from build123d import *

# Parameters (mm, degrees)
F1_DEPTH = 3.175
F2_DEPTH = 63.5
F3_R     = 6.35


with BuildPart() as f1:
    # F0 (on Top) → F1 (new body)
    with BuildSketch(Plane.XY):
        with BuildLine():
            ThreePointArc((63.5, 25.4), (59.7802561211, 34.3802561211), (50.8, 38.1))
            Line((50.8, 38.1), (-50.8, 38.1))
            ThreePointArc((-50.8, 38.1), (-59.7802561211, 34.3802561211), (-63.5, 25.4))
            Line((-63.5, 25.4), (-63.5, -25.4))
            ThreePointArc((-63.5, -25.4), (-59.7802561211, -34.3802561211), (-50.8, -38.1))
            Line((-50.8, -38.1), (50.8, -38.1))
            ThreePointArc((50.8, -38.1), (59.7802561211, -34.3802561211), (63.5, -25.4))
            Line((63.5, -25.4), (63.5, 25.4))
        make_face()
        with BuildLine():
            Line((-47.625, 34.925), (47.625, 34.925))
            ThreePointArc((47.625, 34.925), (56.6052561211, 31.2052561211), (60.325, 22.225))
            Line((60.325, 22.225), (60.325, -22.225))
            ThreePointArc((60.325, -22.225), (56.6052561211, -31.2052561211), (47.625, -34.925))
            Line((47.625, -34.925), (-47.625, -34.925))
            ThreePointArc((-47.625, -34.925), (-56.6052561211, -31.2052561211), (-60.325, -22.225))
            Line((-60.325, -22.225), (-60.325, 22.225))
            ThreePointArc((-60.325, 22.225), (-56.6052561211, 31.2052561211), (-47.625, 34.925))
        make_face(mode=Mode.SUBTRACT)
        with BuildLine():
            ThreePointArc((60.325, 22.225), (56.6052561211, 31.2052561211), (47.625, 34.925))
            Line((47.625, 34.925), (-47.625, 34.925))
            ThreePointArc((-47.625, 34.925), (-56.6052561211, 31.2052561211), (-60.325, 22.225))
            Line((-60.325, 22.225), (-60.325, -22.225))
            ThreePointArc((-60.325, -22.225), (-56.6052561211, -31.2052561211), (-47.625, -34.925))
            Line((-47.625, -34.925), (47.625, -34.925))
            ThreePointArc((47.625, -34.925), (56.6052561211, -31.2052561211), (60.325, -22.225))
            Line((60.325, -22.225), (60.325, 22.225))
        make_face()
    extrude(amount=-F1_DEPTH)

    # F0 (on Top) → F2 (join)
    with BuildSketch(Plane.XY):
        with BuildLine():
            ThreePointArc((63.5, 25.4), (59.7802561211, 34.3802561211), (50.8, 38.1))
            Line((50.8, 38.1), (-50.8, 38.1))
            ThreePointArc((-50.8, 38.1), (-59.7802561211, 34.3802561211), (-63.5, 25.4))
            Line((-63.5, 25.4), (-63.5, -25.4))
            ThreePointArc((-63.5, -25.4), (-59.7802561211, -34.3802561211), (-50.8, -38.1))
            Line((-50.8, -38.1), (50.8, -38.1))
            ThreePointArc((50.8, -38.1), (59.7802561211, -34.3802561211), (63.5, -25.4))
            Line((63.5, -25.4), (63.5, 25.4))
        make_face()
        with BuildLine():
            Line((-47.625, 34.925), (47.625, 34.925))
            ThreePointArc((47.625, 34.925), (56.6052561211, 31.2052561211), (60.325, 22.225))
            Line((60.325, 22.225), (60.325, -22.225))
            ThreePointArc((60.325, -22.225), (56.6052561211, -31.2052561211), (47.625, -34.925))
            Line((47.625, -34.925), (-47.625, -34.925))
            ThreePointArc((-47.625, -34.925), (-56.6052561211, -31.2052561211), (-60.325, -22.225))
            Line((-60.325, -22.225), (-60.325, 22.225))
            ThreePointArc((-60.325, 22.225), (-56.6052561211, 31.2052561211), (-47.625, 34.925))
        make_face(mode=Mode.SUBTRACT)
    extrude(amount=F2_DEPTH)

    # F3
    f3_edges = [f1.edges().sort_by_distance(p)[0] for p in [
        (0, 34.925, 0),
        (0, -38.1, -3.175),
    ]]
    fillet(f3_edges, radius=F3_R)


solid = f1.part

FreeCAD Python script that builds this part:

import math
import FreeCAD as App
import Part
import Sketcher

V = App.Vector
Q = App.Units.Quantity


def edges_at(feature, points):
    """Names of the edges that pass closest to the given points."""
    edges = feature.Shape.Edges
    near = lambda p: min(range(len(edges)), key=lambda i: edges[i].distToShape(Part.Vertex(*p))[0])
    return sorted({f"Edge{near(p) + 1}" for p in points})

doc = App.newDocument("Part")
params = doc.addObject("Spreadsheet::Sheet", "Params")
for row, (alias, value) in enumerate([
    ("sketch1_radius", "0.5 in"),
    ("sketch1_width", "4 in"),
    ("sketch1_height", "2 in"),
    ("pad1_length", "0.125 in"),
    ("sketch2_radius", "0.5 in"),
    ("sketch2_width", "4 in"),
    ("sketch2_height", "2 in"),
    ("sketch2_width2", "3.75 in"),
    ("sketch2_height2", "1.75 in"),
    ("pad2_length", "2.5 in"),
    ("fillet_radius", "0.25 in"),
], start=1):
    params.set(f"A{row}", alias)
    params.set(f"B{row}", "=" + value)
    params.setAlias(f"B{row}", alias)

body = doc.addObject("PartDesign::Body", "Body")

sketch1 = body.newObject("Sketcher::SketchObject", "Sketch")
sketch1.AttachmentSupport = (doc.getObject("XY_Plane"), [""])
sketch1.MapMode = "FlatFace"
sketch1.addGeometry([
    Part.ArcOfCircle(Part.Circle(V(51, 25, 0), V(0, 0, 1), 13), math.radians(0), math.radians(90)),
    Part.LineSegment(V(51, 38, 0), V(-51, 38, 0)),
    Part.ArcOfCircle(Part.Circle(V(-51, 25, 0), V(0, 0, 1), 13), math.radians(90), math.radians(180)),
    Part.LineSegment(V(-64, 25, 0), V(-64, -25, 0)),
    Part.ArcOfCircle(Part.Circle(V(-51, -25, 0), V(0, 0, 1), 13), math.radians(180), math.radians(270)),
    Part.LineSegment(V(-51, -38, 0), V(51, -38, 0)),
    Part.ArcOfCircle(Part.Circle(V(51, -25, 0), V(0, 0, 1), 13), math.radians(-90), math.radians(0)),
    Part.LineSegment(V(64, -25, 0), V(64, 25, 0)),
], False)
sketch1.addConstraint([
    Sketcher.Constraint("Tangent", 0, 2, 1, 1),
    Sketcher.Constraint("Tangent", 1, 2, 2, 1),
    Sketcher.Constraint("Tangent", 2, 2, 3, 1),
    Sketcher.Constraint("Tangent", 3, 2, 4, 1),
    Sketcher.Constraint("Tangent", 4, 2, 5, 1),
    Sketcher.Constraint("Tangent", 5, 2, 6, 1),
    Sketcher.Constraint("Tangent", 6, 2, 7, 1),
    Sketcher.Constraint("Tangent", 7, 2, 0, 1),
    Sketcher.Constraint("Horizontal", 1),
    Sketcher.Constraint("Vertical", 3),
    Sketcher.Constraint("Horizontal", 5),
    Sketcher.Constraint("Vertical", 7),
    Sketcher.Constraint("Equal", 0, 2),
    Sketcher.Constraint("Equal", 2, 4),
    Sketcher.Constraint("Equal", 4, 6),
    Sketcher.Constraint("Symmetric", 0, 3, 4, 3, -1, 1),
    Sketcher.Constraint("Radius", 0, Q("0.5 in")),
    Sketcher.Constraint("DistanceX", 1, 2, 1, 1, Q("4 in")),
    Sketcher.Constraint("DistanceY", 3, 2, 3, 1, Q("2 in")),
])
sketch1.setExpression("Constraints[16]", "Params.sketch1_radius")
sketch1.setExpression("Constraints[17]", "Params.sketch1_width")
sketch1.setExpression("Constraints[18]", "Params.sketch1_height")
pad1 = body.newObject("PartDesign::Pad", "Pad")
pad1.Profile = sketch1
pad1.setExpression("Length", "Params.pad1_length")
pad1.Reversed = True

sketch2 = body.newObject("Sketcher::SketchObject", "Sketch001")
sketch2.AttachmentSupport = (doc.getObject("XY_Plane"), [""])
sketch2.MapMode = "FlatFace"
sketch2.addGeometry([
    Part.ArcOfCircle(Part.Circle(V(51, 25, 0), V(0, 0, 1), 13), math.radians(0), math.radians(90)),
    Part.LineSegment(V(51, 38, 0), V(-51, 38, 0)),
    Part.ArcOfCircle(Part.Circle(V(-51, 25, 0), V(0, 0, 1), 13), math.radians(90), math.radians(180)),
    Part.LineSegment(V(-64, 25, 0), V(-64, -25, 0)),
    Part.ArcOfCircle(Part.Circle(V(-51, -25, 0), V(0, 0, 1), 13), math.radians(180), math.radians(270)),
    Part.LineSegment(V(-51, -38, 0), V(51, -38, 0)),
    Part.ArcOfCircle(Part.Circle(V(51, -25, 0), V(0, 0, 1), 13), math.radians(-90), math.radians(0)),
    Part.LineSegment(V(64, -25, 0), V(64, 25, 0)),
    Part.ArcOfCircle(Part.Circle(V(-48, 22, 0), V(0, 0, 1), 13), math.radians(90), math.radians(180)),
    Part.LineSegment(V(-48, 35, 0), V(48, 35, 0)),
    Part.ArcOfCircle(Part.Circle(V(48, 22, 0), V(0, 0, 1), 13), math.radians(0), math.radians(90)),
    Part.LineSegment(V(60, 22, 0), V(60, -22, 0)),
    Part.ArcOfCircle(Part.Circle(V(48, -22, 0), V(0, 0, 1), 13), math.radians(-90), math.radians(0)),
    Part.LineSegment(V(48, -35, 0), V(-48, -35, 0)),
    Part.ArcOfCircle(Part.Circle(V(-48, -22, 0), V(0, 0, 1), 13), math.radians(180), math.radians(270)),
    Part.LineSegment(V(-60, -22, 0), V(-60, 22, 0)),
], False)
sketch2.addConstraint([
    Sketcher.Constraint("Tangent", 0, 2, 1, 1),
    Sketcher.Constraint("Tangent", 1, 2, 2, 1),
    Sketcher.Constraint("Tangent", 2, 2, 3, 1),
    Sketcher.Constraint("Tangent", 3, 2, 4, 1),
    Sketcher.Constraint("Tangent", 4, 2, 5, 1),
    Sketcher.Constraint("Tangent", 5, 2, 6, 1),
    Sketcher.Constraint("Tangent", 6, 2, 7, 1),
    Sketcher.Constraint("Tangent", 7, 2, 0, 1),
    Sketcher.Constraint("Tangent", 8, 1, 9, 1),
    Sketcher.Constraint("Tangent", 9, 2, 10, 2),
    Sketcher.Constraint("Tangent", 10, 1, 11, 1),
    Sketcher.Constraint("Tangent", 11, 2, 12, 2),
    Sketcher.Constraint("Tangent", 12, 1, 13, 1),
    Sketcher.Constraint("Tangent", 13, 2, 14, 2),
    Sketcher.Constraint("Tangent", 14, 1, 15, 1),
    Sketcher.Constraint("Tangent", 15, 2, 8, 2),
    Sketcher.Constraint("Horizontal", 1),
    Sketcher.Constraint("Vertical", 3),
    Sketcher.Constraint("Horizontal", 5),
    Sketcher.Constraint("Vertical", 7),
    Sketcher.Constraint("Horizontal", 9),
    Sketcher.Constraint("Vertical", 11),
    Sketcher.Constraint("Horizontal", 13),
    Sketcher.Constraint("Vertical", 15),
    Sketcher.Constraint("Equal", 0, 2),
    Sketcher.Constraint("Equal", 2, 4),
    Sketcher.Constraint("Equal", 4, 6),
    Sketcher.Constraint("Equal", 6, 8),
    Sketcher.Constraint("Equal", 8, 10),
    Sketcher.Constraint("Equal", 10, 12),
    Sketcher.Constraint("Equal", 12, 14),
    Sketcher.Constraint("Symmetric", 0, 3, 4, 3, -1, 1),
    Sketcher.Constraint("Symmetric", 8, 3, 12, 3, -1, 1),
    Sketcher.Constraint("Radius", 0, Q("0.5 in")),
    Sketcher.Constraint("DistanceX", 1, 2, 1, 1, Q("4 in")),
    Sketcher.Constraint("DistanceY", 3, 2, 3, 1, Q("2 in")),
    Sketcher.Constraint("DistanceX", 9, 1, 9, 2, Q("3.75 in")),
    Sketcher.Constraint("DistanceY", 11, 2, 11, 1, Q("1.75 in")),
])
sketch2.setExpression("Constraints[33]", "Params.sketch2_radius")
sketch2.setExpression("Constraints[34]", "Params.sketch2_width")
sketch2.setExpression("Constraints[35]", "Params.sketch2_height")
sketch2.setExpression("Constraints[36]", "Params.sketch2_width2")
sketch2.setExpression("Constraints[37]", "Params.sketch2_height2")
pad2 = body.newObject("PartDesign::Pad", "Pad001")
pad2.Profile = sketch2
pad2.setExpression("Length", "Params.pad2_length")
doc.recompute()

fillet = body.newObject("PartDesign::Fillet", "Fillet")
fillet.Base = (pad2, edges_at(pad2, [(0, 34.925, 0), (0, -38.1, -3.175)]))
fillet.setExpression("Radius", "Params.fillet_radius")

doc.recompute()
